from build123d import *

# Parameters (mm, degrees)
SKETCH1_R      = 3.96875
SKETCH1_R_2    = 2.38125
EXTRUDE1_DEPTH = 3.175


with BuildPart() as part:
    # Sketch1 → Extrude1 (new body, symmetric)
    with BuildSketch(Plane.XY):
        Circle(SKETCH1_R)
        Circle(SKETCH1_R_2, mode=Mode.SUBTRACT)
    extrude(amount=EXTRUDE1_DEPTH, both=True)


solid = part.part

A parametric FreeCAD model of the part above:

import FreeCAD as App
import Part
import Sketcher
Q = App.Units.Quantity

doc = App.newDocument("Part")
params = doc.addObject("Spreadsheet::Sheet", "Params")
for row, (alias, value) in enumerate([
    ("sketch1_diameter", "0.3125 in"),
    ("sketch1_diameter2", "0.1875 in"),
    ("pad1_length", "0.25 in"),
], start=1):
    params.set(f"A{row}", alias)
    params.set(f"B{row}", "=" + value)
    params.setAlias(f"B{row}", alias)

body = doc.addObject("PartDesign::Body", "Body")

# Sketch on XY plane
sketch1 = doc.addObject("Sketcher::SketchObject", "Sketch")
body.addObject(sketch1)
sketch1.AttachmentSupport = (doc.XY_Plane, [""])
sketch1.MapMode = "FlatFace"
sketch1.addGeometry([
    Part.Circle(App.Vector(0, 0, 0), App.Vector(0, 0, 1), 4),
    Part.Circle(App.Vector(0, 0, 0), App.Vector(0, 0, 1), 2.4),
], False)
sketch1.addConstraint([
    Sketcher.Constraint("Coincident", 0, 3, -1, 1),
    Sketcher.Constraint("Coincident", 1, 3, -1, 1),
    Sketcher.Constraint("Diameter", 0, Q("0.3125 in")),
    Sketcher.Constraint("Diameter", 1, Q("0.1875 in")),
])
sketch1.setExpression("Constraints[2]", "Params.sketch1_diameter")
sketch1.setExpression("Constraints[3]", "Params.sketch1_diameter2")
pad1 = doc.addObject("PartDesign::Pad", "Pad")
body.addObject(pad1)
pad1.Profile = sketch1
pad1.setExpression("Length", "Params.pad1_length")
pad1.Midplane = True

doc.recompute()
